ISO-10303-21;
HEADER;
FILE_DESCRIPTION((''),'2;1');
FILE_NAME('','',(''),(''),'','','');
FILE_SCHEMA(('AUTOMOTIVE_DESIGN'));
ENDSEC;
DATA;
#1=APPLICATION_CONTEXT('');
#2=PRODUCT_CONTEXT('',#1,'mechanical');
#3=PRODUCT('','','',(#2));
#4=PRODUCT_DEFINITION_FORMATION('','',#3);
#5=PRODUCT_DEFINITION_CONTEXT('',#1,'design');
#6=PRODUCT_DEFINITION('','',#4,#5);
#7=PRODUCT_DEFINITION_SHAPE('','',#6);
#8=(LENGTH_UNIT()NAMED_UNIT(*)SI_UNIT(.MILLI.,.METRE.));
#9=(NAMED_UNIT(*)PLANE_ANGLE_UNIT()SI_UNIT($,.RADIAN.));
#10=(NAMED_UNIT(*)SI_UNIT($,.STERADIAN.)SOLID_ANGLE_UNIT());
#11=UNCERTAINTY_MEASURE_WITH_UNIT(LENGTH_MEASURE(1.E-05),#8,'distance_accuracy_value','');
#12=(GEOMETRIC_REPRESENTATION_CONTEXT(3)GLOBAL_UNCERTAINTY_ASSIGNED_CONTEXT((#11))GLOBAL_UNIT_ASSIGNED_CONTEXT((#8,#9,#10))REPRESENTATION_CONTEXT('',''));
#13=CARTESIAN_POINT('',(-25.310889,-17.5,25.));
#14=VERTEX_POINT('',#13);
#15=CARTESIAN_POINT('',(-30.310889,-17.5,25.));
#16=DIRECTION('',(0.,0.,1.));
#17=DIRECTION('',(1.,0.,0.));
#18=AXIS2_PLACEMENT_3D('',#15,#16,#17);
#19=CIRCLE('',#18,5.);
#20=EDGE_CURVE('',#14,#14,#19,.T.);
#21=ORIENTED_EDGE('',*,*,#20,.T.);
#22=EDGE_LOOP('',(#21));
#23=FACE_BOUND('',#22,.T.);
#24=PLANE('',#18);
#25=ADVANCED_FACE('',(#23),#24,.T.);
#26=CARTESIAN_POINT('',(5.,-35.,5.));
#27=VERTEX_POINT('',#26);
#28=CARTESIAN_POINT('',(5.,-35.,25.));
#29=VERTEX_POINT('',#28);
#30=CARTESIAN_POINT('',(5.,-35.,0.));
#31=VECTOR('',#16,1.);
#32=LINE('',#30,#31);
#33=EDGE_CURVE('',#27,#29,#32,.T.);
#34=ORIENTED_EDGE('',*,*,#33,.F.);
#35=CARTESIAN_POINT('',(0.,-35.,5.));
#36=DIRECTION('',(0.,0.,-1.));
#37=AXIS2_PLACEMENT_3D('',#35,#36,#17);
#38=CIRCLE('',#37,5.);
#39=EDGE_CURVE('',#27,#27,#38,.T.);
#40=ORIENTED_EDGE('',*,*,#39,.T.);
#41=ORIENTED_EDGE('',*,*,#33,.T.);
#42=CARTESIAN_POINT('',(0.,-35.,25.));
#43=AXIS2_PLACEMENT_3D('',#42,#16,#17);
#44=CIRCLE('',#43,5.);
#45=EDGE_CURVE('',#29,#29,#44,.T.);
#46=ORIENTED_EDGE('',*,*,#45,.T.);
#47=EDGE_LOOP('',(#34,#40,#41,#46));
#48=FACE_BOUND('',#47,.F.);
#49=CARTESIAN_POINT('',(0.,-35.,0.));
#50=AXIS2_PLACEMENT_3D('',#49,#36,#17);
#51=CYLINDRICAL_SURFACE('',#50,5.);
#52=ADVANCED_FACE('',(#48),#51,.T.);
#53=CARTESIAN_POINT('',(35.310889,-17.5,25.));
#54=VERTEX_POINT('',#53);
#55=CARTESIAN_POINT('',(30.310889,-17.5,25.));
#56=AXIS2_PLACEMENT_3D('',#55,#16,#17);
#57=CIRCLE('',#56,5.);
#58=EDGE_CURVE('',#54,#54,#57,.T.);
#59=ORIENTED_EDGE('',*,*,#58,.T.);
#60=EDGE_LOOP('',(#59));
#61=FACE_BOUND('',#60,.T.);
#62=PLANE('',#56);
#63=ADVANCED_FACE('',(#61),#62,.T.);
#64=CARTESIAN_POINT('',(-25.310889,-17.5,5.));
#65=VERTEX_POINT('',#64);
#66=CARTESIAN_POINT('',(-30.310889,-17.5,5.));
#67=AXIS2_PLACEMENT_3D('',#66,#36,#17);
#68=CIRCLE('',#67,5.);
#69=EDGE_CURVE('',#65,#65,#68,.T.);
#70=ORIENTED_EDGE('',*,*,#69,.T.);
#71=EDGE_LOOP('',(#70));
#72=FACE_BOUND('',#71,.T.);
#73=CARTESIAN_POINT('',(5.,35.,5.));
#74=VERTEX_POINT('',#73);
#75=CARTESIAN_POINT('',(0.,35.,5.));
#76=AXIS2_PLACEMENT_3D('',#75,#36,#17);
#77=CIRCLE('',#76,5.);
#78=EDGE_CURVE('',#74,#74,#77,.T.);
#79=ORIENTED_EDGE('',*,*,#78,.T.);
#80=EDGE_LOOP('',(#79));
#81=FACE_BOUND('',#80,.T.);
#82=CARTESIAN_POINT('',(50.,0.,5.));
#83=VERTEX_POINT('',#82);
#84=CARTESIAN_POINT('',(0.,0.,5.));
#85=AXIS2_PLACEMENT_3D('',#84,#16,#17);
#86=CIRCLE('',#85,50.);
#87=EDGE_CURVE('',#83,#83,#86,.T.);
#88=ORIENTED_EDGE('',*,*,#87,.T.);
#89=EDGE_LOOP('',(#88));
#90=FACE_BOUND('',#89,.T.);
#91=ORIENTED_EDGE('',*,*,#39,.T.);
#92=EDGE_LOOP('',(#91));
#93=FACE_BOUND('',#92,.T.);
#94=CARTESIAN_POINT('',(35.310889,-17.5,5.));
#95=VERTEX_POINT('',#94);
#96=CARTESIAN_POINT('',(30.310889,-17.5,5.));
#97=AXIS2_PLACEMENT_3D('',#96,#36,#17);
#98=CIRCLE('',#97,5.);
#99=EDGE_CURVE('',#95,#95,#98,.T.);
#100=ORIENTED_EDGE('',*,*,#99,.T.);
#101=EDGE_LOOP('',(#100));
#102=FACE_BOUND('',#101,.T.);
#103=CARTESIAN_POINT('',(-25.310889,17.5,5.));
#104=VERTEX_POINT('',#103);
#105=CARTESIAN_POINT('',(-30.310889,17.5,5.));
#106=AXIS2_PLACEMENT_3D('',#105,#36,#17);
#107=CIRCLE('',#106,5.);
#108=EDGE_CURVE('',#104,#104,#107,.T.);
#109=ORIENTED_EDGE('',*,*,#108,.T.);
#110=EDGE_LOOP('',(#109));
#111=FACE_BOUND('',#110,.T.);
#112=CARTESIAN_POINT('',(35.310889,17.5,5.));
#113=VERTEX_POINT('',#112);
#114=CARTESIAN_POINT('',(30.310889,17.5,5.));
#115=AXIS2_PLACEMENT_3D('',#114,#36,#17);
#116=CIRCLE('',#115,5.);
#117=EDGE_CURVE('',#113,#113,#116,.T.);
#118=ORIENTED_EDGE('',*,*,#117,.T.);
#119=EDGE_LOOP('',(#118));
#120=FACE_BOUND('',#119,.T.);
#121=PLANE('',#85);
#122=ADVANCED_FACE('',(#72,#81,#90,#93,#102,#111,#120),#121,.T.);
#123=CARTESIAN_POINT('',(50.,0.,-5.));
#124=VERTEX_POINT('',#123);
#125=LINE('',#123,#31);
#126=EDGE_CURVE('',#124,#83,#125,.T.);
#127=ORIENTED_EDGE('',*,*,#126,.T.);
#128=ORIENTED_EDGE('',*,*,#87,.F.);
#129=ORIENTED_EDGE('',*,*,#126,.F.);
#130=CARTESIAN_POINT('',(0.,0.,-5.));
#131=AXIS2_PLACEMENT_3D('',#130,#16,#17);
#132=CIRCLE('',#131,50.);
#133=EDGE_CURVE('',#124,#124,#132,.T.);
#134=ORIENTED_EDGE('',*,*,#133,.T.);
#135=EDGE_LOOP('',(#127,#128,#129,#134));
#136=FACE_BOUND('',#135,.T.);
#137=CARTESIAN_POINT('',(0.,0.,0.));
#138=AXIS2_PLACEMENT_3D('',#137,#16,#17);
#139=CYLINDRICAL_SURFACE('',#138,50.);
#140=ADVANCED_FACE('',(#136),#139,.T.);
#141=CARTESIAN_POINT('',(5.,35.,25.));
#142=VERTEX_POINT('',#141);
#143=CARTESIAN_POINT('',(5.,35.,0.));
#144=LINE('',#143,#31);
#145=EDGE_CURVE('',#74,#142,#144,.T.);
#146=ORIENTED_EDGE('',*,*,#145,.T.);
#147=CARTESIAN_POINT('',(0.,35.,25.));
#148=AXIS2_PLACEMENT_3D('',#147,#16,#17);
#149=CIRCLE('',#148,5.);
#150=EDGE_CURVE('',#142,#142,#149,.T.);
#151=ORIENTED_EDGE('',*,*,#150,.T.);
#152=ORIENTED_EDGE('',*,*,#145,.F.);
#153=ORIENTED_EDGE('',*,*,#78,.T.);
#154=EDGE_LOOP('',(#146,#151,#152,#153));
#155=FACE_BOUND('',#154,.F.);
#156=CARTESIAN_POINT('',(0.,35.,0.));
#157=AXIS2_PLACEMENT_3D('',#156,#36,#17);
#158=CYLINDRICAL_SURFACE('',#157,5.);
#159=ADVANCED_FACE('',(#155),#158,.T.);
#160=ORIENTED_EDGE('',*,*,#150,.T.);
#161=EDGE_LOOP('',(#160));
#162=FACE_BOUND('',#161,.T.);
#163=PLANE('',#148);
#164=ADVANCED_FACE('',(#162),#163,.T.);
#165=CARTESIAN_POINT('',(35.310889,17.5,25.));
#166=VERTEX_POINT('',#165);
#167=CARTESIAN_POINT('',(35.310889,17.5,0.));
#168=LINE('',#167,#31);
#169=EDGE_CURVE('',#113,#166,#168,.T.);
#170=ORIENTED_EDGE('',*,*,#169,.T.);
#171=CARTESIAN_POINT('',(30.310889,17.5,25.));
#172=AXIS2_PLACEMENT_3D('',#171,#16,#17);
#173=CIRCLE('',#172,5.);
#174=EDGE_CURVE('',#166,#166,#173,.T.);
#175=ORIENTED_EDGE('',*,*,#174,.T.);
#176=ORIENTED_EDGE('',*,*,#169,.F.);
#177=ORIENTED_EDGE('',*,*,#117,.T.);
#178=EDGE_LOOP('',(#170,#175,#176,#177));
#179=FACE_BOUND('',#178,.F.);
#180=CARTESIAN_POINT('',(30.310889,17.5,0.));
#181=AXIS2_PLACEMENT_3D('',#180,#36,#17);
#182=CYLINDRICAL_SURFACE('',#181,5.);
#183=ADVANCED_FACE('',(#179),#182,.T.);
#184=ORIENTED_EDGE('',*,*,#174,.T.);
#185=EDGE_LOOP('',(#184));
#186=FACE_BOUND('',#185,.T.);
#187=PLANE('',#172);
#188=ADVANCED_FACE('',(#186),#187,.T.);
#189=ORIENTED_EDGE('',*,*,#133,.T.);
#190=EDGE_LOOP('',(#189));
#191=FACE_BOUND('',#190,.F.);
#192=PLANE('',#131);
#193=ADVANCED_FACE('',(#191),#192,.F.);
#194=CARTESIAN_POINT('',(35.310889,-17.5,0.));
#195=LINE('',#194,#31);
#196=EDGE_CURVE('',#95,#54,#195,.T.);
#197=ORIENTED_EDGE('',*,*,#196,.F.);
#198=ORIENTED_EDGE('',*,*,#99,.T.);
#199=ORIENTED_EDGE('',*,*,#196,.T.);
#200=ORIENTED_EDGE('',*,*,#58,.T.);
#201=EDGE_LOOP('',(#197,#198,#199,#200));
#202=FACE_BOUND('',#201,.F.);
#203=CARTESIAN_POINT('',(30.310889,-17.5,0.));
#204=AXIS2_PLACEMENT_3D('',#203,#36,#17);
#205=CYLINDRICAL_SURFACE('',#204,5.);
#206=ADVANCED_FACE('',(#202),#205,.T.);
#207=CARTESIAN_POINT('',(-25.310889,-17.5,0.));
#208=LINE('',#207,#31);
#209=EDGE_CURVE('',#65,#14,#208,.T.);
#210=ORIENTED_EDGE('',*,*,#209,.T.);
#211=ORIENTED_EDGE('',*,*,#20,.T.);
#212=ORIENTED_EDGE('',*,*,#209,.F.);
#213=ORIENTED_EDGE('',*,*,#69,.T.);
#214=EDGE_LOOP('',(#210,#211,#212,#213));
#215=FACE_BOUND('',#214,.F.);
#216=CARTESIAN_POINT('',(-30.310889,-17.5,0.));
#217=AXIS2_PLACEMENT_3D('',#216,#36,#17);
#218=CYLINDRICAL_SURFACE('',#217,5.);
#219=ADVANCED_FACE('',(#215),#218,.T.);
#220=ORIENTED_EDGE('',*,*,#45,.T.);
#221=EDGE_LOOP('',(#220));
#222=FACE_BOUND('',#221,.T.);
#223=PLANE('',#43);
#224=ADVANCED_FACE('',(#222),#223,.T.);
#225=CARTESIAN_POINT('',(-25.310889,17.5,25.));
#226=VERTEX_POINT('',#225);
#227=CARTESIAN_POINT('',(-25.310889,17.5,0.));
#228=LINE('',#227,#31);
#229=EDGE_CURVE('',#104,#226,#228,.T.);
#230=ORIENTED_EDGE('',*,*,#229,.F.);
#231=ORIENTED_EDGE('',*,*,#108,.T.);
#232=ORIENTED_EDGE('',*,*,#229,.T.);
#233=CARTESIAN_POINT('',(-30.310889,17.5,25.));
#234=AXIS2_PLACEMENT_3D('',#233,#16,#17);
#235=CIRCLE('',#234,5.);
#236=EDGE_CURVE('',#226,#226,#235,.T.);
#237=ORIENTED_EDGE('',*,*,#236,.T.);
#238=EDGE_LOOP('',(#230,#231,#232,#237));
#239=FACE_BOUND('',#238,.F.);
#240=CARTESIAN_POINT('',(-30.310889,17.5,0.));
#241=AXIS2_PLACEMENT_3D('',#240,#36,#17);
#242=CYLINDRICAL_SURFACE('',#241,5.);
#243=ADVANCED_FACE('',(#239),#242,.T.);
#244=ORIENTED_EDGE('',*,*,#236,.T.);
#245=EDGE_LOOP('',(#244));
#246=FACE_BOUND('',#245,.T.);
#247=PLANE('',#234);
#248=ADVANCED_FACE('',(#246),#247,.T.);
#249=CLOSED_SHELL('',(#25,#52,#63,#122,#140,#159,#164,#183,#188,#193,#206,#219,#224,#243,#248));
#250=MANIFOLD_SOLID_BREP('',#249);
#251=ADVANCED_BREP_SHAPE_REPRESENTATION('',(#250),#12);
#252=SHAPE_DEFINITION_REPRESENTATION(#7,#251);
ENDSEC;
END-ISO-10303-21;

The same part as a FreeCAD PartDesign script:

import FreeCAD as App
import Part
import Sketcher

doc = App.newDocument("Part")
body = doc.addObject("PartDesign::Body", "Body")

sketch1 = body.newObject("Sketcher::SketchObject", "Sketch")
sketch1.AttachmentSupport = (doc.getObject("XY_Plane"), [""])
sketch1.MapMode = "FlatFace"
sketch1.addGeometry(Part.Circle(App.Vector(0, 0, 0), App.Vector(0, 0, 1), 50), False)
sketch1.addConstraint([
    Sketcher.Constraint("Coincident", 0, 3, -1, 1),
    Sketcher.Constraint("Diameter", 0, 100.0),
])
pad1 = body.newObject("PartDesign::Pad", "Pad")
pad1.Profile = sketch1
pad1.Length = 10
pad1.Midplane = True

sketch2 = body.newObject("Sketcher::SketchObject", "Sketch001")
sketch2.AttachmentSupport = (doc.getObject("XY_Plane"), [""])
sketch2.MapMode = "FlatFace"
sketch2.addGeometry([
    Part.Circle(App.Vector(0, 35, 0), App.Vector(0, 0, 1), 5),
    Part.Circle(App.Vector(-30, 18, 0), App.Vector(0, 0, 1), 5),
    Part.Circle(App.Vector(-30, -18, 0), App.Vector(0, 0, 1), 5),
    Part.Circle(App.Vector(0, -35, 0), App.Vector(0, 0, 1), 5),
    Part.Circle(App.Vector(30, -18, 0), App.Vector(0, 0, 1), 5),
    Part.Circle(App.Vector(30, 18, 0), App.Vector(0, 0, 1), 5),
], False)
sketch2.addConstraint([
    Sketcher.Constraint("Equal", 0, 1),
    Sketcher.Constraint("Equal", 1, 2),
    Sketcher.Constraint("Equal", 2, 3),
    Sketcher.Constraint("Equal", 3, 4),
    Sketcher.Constraint("Equal", 4, 5),
    Sketcher.Constraint("Symmetric", 0, 3, 3, 3, -1, 1),
    Sketcher.Constraint("Symmetric", 1, 3, 4, 3, -1, 1),
    Sketcher.Constraint("Symmetric", 2, 3, 5, 3, -1, 1),
    Sketcher.Constraint("Symmetric", 2, 3, 4, 3, -2),
    Sketcher.Constraint("PointOnObject", 0, 3, -2),
    Sketcher.Constraint("Diameter", 0, 10.0),
    Sketcher.Constraint("DistanceY", -1, 1, 0, 3, 35.0),
    Sketcher.Constraint("DistanceY", 2, 3, 1, 3, 35.0),
    Sketcher.Constraint("DistanceX", 1, 3, -1, 1, 30.310889),
])
pad2 = body.newObject("PartDesign::Pad", "Pad001")
pad2.Profile = sketch2
pad2.Length = 25

doc.recompute()
